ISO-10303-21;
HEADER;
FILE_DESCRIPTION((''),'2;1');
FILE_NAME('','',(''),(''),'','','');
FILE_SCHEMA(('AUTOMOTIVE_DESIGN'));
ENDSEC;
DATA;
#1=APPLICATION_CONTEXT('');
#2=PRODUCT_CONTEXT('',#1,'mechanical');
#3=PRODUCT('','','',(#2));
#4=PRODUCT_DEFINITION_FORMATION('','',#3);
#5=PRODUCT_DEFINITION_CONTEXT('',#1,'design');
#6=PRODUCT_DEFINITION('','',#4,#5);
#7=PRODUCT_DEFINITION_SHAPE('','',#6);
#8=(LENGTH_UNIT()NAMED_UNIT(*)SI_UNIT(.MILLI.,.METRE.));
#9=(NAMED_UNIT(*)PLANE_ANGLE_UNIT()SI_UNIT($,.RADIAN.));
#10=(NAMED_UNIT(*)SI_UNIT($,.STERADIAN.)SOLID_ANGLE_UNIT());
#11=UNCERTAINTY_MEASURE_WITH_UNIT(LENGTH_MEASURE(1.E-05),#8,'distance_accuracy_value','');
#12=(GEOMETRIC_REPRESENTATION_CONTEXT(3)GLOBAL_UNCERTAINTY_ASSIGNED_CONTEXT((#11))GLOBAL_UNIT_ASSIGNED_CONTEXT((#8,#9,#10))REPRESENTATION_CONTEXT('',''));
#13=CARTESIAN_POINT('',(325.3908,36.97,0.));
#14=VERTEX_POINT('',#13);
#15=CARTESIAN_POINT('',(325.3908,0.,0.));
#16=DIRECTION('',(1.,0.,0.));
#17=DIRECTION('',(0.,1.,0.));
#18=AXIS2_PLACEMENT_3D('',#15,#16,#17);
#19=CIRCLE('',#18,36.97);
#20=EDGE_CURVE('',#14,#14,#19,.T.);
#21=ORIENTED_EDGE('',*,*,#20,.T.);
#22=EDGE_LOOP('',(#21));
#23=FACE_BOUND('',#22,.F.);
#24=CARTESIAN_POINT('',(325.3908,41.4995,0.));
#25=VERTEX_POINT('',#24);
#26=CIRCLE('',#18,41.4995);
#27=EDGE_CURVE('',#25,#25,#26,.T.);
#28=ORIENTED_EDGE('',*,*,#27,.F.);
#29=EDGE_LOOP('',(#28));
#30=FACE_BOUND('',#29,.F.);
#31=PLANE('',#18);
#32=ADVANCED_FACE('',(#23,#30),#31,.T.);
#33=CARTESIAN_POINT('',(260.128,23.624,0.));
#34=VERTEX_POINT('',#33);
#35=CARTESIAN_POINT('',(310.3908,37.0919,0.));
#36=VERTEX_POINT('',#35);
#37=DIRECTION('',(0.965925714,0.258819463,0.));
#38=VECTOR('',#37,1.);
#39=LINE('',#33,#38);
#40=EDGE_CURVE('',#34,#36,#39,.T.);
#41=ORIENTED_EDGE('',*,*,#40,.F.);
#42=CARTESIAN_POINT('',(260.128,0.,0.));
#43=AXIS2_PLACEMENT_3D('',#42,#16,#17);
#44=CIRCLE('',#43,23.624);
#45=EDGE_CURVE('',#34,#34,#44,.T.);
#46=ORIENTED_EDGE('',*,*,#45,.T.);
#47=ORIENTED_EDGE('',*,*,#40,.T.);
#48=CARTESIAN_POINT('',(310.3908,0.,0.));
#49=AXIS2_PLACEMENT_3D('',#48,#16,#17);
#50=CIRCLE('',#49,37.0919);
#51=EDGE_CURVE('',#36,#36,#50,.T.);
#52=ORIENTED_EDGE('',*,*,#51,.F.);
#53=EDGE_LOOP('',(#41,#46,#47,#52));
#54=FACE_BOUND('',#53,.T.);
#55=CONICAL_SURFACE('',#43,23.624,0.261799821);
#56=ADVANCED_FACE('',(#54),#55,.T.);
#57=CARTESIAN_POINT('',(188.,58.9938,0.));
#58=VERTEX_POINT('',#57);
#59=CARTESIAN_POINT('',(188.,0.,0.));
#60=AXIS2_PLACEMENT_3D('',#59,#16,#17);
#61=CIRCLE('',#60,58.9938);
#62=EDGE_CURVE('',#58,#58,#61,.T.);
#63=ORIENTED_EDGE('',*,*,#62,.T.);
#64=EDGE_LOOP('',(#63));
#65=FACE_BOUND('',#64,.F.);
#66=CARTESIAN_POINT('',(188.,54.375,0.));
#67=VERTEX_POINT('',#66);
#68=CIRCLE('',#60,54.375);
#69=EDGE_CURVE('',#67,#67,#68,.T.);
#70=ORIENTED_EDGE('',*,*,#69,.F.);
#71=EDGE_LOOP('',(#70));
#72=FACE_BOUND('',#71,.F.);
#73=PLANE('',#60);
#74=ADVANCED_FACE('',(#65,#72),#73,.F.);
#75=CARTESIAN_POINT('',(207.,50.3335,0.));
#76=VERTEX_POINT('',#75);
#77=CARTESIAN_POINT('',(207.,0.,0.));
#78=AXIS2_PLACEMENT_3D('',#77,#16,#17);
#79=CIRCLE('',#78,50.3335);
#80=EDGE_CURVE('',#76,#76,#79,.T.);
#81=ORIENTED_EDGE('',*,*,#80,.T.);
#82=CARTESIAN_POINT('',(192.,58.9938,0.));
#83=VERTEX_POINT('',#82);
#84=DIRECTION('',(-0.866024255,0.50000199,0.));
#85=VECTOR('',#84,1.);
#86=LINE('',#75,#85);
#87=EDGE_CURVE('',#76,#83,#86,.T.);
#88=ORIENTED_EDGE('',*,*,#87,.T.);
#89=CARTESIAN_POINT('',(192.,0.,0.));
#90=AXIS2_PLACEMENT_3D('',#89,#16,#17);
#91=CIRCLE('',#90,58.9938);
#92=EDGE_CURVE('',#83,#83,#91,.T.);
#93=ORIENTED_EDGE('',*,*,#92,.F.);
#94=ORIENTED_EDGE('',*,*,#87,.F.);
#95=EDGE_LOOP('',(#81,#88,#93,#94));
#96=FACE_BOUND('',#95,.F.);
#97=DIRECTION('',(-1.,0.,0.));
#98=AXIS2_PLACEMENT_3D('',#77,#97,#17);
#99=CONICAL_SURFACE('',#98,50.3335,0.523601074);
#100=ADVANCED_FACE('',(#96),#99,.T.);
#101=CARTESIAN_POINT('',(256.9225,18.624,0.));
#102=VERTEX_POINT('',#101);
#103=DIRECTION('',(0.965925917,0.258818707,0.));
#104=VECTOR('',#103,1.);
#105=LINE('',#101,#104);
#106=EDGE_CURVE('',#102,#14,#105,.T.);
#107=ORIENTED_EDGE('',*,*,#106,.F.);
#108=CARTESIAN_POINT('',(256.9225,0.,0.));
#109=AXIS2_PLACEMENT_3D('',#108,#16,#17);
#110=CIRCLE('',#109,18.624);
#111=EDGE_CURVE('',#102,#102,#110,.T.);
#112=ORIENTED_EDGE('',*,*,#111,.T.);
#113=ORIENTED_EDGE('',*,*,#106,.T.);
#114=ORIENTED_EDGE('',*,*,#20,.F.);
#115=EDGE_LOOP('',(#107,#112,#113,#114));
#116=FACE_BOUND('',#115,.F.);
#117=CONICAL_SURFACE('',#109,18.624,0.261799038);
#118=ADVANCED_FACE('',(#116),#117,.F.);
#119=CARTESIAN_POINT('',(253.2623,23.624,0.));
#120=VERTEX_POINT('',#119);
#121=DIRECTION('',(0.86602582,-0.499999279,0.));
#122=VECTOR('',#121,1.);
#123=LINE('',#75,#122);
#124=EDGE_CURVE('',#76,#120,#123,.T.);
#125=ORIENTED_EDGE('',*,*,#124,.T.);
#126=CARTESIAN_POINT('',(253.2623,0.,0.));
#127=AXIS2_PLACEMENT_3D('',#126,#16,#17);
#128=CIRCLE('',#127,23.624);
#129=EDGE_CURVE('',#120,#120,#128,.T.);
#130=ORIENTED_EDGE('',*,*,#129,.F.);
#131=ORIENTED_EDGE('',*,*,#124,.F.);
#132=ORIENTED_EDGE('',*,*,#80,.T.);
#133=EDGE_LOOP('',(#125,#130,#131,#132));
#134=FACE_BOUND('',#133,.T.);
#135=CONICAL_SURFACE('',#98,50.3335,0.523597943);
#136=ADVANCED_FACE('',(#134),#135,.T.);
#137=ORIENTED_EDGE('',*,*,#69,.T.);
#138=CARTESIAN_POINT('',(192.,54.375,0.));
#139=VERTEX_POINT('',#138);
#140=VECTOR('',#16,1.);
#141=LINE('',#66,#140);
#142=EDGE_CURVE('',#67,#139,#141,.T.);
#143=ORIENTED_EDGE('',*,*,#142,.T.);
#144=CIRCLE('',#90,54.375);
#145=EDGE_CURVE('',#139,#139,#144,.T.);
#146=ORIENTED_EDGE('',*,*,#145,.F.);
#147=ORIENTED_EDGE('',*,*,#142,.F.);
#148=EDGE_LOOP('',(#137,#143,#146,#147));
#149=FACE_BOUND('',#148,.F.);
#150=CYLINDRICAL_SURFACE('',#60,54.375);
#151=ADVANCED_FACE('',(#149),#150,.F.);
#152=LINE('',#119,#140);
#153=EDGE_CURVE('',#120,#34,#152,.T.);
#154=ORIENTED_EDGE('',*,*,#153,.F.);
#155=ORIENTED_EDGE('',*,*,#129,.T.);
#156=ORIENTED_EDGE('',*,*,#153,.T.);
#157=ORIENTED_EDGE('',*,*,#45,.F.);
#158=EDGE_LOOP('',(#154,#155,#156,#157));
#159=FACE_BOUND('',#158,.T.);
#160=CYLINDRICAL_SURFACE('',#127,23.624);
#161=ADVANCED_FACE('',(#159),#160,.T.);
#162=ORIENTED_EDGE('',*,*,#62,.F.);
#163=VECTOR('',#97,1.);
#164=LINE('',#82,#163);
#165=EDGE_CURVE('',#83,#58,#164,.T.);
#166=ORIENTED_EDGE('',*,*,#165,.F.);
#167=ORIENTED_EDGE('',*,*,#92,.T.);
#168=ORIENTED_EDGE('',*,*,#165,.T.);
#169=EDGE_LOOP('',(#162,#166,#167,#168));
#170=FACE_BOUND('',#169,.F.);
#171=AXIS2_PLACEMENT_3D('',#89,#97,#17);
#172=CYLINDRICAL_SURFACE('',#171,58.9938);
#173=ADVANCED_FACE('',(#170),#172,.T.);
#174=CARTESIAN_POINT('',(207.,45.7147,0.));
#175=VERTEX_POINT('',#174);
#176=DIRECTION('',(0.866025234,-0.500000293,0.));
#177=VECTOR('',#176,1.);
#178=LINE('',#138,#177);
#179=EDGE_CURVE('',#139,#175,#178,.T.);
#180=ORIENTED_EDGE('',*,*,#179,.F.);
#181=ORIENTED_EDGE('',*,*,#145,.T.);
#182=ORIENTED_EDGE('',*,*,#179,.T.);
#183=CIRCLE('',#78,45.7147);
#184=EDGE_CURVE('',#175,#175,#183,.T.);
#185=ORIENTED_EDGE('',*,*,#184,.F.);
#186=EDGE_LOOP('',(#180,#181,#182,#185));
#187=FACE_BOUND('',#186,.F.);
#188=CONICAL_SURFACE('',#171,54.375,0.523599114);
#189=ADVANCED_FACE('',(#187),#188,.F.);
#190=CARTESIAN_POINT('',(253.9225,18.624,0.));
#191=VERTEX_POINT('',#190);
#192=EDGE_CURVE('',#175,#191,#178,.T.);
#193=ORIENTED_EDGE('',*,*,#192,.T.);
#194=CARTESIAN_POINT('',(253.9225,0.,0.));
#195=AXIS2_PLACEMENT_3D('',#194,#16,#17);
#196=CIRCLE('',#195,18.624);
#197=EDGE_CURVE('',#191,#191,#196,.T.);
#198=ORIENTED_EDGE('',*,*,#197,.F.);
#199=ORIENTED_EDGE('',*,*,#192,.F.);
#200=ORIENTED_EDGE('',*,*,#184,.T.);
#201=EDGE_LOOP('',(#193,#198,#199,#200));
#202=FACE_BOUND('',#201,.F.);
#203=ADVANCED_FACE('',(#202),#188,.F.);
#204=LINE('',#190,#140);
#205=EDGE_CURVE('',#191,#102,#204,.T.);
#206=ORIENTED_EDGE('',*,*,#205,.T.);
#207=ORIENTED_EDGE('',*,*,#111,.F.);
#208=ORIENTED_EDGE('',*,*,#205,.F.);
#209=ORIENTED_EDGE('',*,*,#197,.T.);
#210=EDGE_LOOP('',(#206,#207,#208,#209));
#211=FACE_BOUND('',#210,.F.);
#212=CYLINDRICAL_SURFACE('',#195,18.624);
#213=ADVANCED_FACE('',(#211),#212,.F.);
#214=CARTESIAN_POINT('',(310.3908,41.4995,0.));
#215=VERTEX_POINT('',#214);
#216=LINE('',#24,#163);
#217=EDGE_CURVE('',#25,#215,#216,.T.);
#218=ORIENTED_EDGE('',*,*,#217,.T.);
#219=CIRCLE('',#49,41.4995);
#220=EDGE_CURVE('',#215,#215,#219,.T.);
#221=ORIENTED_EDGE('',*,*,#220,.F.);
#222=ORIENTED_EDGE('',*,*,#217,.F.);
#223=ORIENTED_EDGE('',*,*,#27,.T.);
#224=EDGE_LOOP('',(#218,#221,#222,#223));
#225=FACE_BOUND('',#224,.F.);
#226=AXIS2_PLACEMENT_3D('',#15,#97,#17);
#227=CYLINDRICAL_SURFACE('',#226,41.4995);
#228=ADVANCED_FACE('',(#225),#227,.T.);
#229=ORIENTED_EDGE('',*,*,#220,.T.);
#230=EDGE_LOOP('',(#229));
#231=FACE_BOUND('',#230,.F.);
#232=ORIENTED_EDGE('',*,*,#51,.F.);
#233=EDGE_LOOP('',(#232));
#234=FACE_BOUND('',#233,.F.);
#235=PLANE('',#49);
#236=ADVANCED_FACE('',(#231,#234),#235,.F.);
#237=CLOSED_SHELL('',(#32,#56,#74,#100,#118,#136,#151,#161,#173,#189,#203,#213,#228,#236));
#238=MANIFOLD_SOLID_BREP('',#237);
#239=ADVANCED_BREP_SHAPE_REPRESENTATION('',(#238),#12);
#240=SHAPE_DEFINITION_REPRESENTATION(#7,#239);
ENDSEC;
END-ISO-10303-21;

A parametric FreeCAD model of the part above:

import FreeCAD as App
import Part
import Sketcher

V = App.Vector
Q = App.Units.Quantity


def add_polygon(sketch, points):
    """Adds a closed chain of lines whose ends are joined by coincident constraints."""
    first, n = sketch.GeometryCount, len(points)
    for a, b in zip(points, points[1:] + points[:1]):
        sketch.addGeometry(Part.LineSegment(App.Vector(*a, 0), App.Vector(*b, 0)), False)
    for i in range(n):
        sketch.addConstraint(Sketcher.Constraint("Coincident", first + i, 2, first + (i + 1) % n, 1))

doc = App.newDocument("Part")
body = doc.addObject("PartDesign::Body", "Body")

# Sketch on XY plane
sketch1 = body.newObject("Sketcher::SketchObject", "Sketch")
sketch1.AttachmentSupport = (doc.getObject("XY_Plane"), [""])
sketch1.MapMode = "FlatFace"
add_polygon(sketch1, [(188, 54.4), (192, 54.4), (253.9, 18.6), (256.9, 18.6), (325.4, 37), (325.4, 41.5), (310.4, 41.5), (310.4, 37.1), (260.1, 23.6), (253.3, 23.6), (207, 50.3), (192, 59), (188, 59)])  # lines 0-12
sketch1.addConstraint(Sketcher.Constraint("Horizontal", 0))
sketch1.addConstraint(Sketcher.Constraint("Horizontal", 2))
sketch1.addConstraint(Sketcher.Constraint("Vertical", 4))
sketch1.addConstraint(Sketcher.Constraint("Horizontal", 5))
sketch1.addConstraint(Sketcher.Constraint("Vertical", 6))
sketch1.addConstraint(Sketcher.Constraint("Horizontal", 8))
sketch1.addConstraint(Sketcher.Constraint("Horizontal", 11))
sketch1.addConstraint(Sketcher.Constraint("Vertical", 12))
sketch1.addConstraint(Sketcher.Constraint("Parallel", 3, 7))
sketch1.addConstraint(Sketcher.Constraint("Parallel", 1, 9))
sketch1.addConstraint(Sketcher.Constraint("Parallel", 9, 10))
sketch1.addConstraint(Sketcher.Constraint("Vertical", 0, 2, 10, 2))
sketch1.addConstraint(Sketcher.Constraint("DistanceX", 0, 1, 0, 2, 4.0))
sketch1.addConstraint(Sketcher.Constraint("DistanceX", 2, 1, 2, 2, 3.0))
sketch1.addConstraint(Sketcher.Constraint("DistanceX", 5, 2, 5, 1, 15.0))
sketch1.addConstraint(Sketcher.Constraint("Angle", 3, Q("15 deg")))
sketch1.addConstraint(Sketcher.Constraint("Angle", 9, Q("150 deg")))
sketch1.addConstraint(Sketcher.Constraint("DistanceY", 2, 2, 7, 2, 5.0))
sketch1.addConstraint(Sketcher.Constraint("DistanceX", 0, 2, 9, 2, 15.0))
sketch1.addConstraint(Sketcher.Constraint("DistanceY", -1, 1, 3, 2, 36.97))
sketch1.addConstraint(Sketcher.Constraint("DistanceY", -1, 1, 0, 2, 54.375))
sketch1.addConstraint(Sketcher.Constraint("DistanceY", -1, 1, 1, 2, 18.624))
sketch1.addConstraint(Sketcher.Constraint("DistanceX", -1, 1, 0, 2, 192.0))
sketch1.addConstraint(Sketcher.Constraint("Distance", 7, 52.036))
sketch1.addConstraint(Sketcher.Constraint("Distance", 9, 53.419))
sketch1.addConstraint(Sketcher.Constraint("DistanceY", 4, 1, 4, 2, 4.5295))
revolution = body.newObject("PartDesign::Revolution", "Revolution")
revolution.Profile = sketch1
revolution.ReferenceAxis = (sketch1, ["H_Axis"])
revolution.Angle = 360

doc.recompute()
